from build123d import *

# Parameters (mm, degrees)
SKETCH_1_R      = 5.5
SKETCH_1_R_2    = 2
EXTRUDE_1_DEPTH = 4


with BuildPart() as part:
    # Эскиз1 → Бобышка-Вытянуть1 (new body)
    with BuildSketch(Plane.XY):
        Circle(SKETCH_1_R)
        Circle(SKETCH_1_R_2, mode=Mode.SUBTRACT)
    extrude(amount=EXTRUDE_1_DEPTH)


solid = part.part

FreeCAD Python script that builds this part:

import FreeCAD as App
import Part
import Sketcher
from FreeCAD import Vector

doc = App.newDocument("Part")
body = doc.addObject("PartDesign::Body", "Body")

sketch1 = body.newObject("Sketcher::SketchObject", "Sketch")
sketch1.AttachmentSupport = (doc.getObject("XY_Plane"), [""])
sketch1.MapMode = "FlatFace"
sketch1.addGeometry(Part.Circle(Vector(0, 0, 0), Vector(0, 0, 1), 5.5), False)
sketch1.addGeometry(Part.Circle(Vector(0, 0, 0), Vector(0, 0, 1), 2), False)
sketch1.addConstraint(Sketcher.Constraint("Coincident", 0, 3, -1, 1))
sketch1.addConstraint(Sketcher.Constraint("Coincident", 1, 3, -1, 1))
sketch1.addConstraint(Sketcher.Constraint("Diameter", 0, 11.0))
sketch1.addConstraint(Sketcher.Constraint("Diameter", 1, 4.0))
pad1 = body.newObject("PartDesign::Pad", "Pad")
pad1.Profile = sketch1
pad1.Length = 4

doc.recompute()
